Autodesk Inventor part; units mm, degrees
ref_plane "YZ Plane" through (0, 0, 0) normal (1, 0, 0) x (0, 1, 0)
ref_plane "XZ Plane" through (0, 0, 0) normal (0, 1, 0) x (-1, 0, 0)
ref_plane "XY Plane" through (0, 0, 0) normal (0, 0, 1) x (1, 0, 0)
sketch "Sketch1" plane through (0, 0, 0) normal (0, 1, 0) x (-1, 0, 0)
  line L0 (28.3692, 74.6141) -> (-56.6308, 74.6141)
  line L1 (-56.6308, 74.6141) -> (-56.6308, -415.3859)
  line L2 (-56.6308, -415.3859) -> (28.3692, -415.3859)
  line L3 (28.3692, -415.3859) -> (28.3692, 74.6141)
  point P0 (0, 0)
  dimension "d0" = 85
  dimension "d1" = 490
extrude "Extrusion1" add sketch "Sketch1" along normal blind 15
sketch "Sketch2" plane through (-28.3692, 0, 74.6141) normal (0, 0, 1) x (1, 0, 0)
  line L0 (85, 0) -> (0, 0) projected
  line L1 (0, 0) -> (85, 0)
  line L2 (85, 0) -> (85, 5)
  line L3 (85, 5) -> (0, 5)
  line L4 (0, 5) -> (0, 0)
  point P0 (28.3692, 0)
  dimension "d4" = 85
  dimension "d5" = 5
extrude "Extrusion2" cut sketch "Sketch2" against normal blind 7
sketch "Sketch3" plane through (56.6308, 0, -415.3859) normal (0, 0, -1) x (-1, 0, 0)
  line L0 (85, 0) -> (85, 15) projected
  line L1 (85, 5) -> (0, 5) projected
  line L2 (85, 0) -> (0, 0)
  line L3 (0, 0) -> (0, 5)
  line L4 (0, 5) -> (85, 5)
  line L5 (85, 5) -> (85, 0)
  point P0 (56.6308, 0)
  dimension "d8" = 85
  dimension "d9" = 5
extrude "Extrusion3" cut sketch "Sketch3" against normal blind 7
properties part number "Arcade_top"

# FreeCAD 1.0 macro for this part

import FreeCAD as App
import Part
import Sketcher
Q = App.Units.Quantity


def add_polygon(sketch, points):
    """Adds a closed chain of lines whose ends are joined by coincident constraints."""
    first, n = sketch.GeometryCount, len(points)
    for a, b in zip(points, points[1:] + points[:1]):
        sketch.addGeometry(Part.LineSegment(App.Vector(*a, 0), App.Vector(*b, 0)), False)
    for i in range(n):
        sketch.addConstraint(Sketcher.Constraint("Coincident", first + i, 2, first + (i + 1) % n, 1))

doc = App.newDocument("Part")
body = doc.addObject("PartDesign::Body", "Body")

# Sketch on XZ plane
sketch1 = body.newObject("Sketcher::SketchObject", "Sketch")
sketch1.AttachmentSupport = (doc.getObject("XZ_Plane"), [""])
sketch1.MapMode = "FlatFace"
add_polygon(sketch1, [(-28, -415), (-28, 75), (57, 75), (57, -415)])  # lines 0-3
sketch1.addConstraint([
    Sketcher.Constraint("Vertical", 0),
    Sketcher.Constraint("Horizontal", 1),
    Sketcher.Constraint("Vertical", 2),
    Sketcher.Constraint("Horizontal", 3),
    Sketcher.Constraint("DistanceX", 1, 1, 1, 2, Q("85 mm")),
    Sketcher.Constraint("DistanceY", 0, 1, 0, 2, Q("490 mm")),
    Sketcher.Constraint("DistanceY", -1, 1, 0, 2, Q("74.614 mm")),
    Sketcher.Constraint("DistanceX", 0, 2, -1, 1, Q("28.3692 mm")),
])
pad1 = body.newObject("PartDesign::Pad", "Pad")
pad1.Profile = sketch1
pad1.Length = 15
pad1.Reversed = True

# Sketch on XY plane
sketch2 = body.newObject("Sketcher::SketchObject", "Sketch001")
sketch2.AttachmentSupport = (doc.getObject("XY_Plane"), [""])
sketch2.MapMode = "FlatFace"
sketch2.AttachmentOffset = App.Placement(App.Vector(0, 0, 74.6141), App.Rotation())
add_polygon(sketch2, [(-28, 0), (57, 0), (57, 5), (-28, 5)])  # lines 0-3
sketch2.addConstraint([
    Sketcher.Constraint("Horizontal", 0),
    Sketcher.Constraint("Vertical", 1),
    Sketcher.Constraint("Horizontal", 2),
    Sketcher.Constraint("Vertical", 3),
    Sketcher.Constraint("PointOnObject", 0, 2, -1),
    Sketcher.Constraint("DistanceX", 0, 1, 0, 2, Q("85 mm")),
    Sketcher.Constraint("DistanceY", 1, 1, 1, 2, Q("5 mm")),
    Sketcher.Constraint("DistanceX", -1, 1, 0, 2, Q("56.6308 mm")),
])
pocket1 = body.newObject("PartDesign::Pocket", "Pocket")
pocket1.Profile = sketch2
pocket1.Length = 7

# Sketch on XY plane
sketch3 = body.newObject("Sketcher::SketchObject", "Sketch002")
sketch3.AttachmentSupport = (doc.getObject("XY_Plane"), [""])
sketch3.MapMode = "FlatFace"
sketch3.AttachmentOffset = App.Placement(App.Vector(0, 0, -415.3859), App.Rotation())
add_polygon(sketch3, [(57, 0), (-28, 0), (-28, 5), (57, 5)])  # lines 0-3
sketch3.addConstraint([
    Sketcher.Constraint("Horizontal", 0),
    Sketcher.Constraint("Vertical", 1),
    Sketcher.Constraint("Horizontal", 2),
    Sketcher.Constraint("Vertical", 3),
    Sketcher.Constraint("PointOnObject", 0, 2, -1),
    Sketcher.Constraint("DistanceX", 0, 2, 0, 1, Q("85 mm")),
    Sketcher.Constraint("DistanceY", 1, 1, 1, 2, Q("5 mm")),
    Sketcher.Constraint("DistanceX", 0, 2, -1, 1, Q("28.3692 mm")),
])
pocket2 = body.newObject("PartDesign::Pocket", "Pocket001")
pocket2.Profile = sketch3
pocket2.Length = 7
pocket2.Reversed = True

doc.recompute()
